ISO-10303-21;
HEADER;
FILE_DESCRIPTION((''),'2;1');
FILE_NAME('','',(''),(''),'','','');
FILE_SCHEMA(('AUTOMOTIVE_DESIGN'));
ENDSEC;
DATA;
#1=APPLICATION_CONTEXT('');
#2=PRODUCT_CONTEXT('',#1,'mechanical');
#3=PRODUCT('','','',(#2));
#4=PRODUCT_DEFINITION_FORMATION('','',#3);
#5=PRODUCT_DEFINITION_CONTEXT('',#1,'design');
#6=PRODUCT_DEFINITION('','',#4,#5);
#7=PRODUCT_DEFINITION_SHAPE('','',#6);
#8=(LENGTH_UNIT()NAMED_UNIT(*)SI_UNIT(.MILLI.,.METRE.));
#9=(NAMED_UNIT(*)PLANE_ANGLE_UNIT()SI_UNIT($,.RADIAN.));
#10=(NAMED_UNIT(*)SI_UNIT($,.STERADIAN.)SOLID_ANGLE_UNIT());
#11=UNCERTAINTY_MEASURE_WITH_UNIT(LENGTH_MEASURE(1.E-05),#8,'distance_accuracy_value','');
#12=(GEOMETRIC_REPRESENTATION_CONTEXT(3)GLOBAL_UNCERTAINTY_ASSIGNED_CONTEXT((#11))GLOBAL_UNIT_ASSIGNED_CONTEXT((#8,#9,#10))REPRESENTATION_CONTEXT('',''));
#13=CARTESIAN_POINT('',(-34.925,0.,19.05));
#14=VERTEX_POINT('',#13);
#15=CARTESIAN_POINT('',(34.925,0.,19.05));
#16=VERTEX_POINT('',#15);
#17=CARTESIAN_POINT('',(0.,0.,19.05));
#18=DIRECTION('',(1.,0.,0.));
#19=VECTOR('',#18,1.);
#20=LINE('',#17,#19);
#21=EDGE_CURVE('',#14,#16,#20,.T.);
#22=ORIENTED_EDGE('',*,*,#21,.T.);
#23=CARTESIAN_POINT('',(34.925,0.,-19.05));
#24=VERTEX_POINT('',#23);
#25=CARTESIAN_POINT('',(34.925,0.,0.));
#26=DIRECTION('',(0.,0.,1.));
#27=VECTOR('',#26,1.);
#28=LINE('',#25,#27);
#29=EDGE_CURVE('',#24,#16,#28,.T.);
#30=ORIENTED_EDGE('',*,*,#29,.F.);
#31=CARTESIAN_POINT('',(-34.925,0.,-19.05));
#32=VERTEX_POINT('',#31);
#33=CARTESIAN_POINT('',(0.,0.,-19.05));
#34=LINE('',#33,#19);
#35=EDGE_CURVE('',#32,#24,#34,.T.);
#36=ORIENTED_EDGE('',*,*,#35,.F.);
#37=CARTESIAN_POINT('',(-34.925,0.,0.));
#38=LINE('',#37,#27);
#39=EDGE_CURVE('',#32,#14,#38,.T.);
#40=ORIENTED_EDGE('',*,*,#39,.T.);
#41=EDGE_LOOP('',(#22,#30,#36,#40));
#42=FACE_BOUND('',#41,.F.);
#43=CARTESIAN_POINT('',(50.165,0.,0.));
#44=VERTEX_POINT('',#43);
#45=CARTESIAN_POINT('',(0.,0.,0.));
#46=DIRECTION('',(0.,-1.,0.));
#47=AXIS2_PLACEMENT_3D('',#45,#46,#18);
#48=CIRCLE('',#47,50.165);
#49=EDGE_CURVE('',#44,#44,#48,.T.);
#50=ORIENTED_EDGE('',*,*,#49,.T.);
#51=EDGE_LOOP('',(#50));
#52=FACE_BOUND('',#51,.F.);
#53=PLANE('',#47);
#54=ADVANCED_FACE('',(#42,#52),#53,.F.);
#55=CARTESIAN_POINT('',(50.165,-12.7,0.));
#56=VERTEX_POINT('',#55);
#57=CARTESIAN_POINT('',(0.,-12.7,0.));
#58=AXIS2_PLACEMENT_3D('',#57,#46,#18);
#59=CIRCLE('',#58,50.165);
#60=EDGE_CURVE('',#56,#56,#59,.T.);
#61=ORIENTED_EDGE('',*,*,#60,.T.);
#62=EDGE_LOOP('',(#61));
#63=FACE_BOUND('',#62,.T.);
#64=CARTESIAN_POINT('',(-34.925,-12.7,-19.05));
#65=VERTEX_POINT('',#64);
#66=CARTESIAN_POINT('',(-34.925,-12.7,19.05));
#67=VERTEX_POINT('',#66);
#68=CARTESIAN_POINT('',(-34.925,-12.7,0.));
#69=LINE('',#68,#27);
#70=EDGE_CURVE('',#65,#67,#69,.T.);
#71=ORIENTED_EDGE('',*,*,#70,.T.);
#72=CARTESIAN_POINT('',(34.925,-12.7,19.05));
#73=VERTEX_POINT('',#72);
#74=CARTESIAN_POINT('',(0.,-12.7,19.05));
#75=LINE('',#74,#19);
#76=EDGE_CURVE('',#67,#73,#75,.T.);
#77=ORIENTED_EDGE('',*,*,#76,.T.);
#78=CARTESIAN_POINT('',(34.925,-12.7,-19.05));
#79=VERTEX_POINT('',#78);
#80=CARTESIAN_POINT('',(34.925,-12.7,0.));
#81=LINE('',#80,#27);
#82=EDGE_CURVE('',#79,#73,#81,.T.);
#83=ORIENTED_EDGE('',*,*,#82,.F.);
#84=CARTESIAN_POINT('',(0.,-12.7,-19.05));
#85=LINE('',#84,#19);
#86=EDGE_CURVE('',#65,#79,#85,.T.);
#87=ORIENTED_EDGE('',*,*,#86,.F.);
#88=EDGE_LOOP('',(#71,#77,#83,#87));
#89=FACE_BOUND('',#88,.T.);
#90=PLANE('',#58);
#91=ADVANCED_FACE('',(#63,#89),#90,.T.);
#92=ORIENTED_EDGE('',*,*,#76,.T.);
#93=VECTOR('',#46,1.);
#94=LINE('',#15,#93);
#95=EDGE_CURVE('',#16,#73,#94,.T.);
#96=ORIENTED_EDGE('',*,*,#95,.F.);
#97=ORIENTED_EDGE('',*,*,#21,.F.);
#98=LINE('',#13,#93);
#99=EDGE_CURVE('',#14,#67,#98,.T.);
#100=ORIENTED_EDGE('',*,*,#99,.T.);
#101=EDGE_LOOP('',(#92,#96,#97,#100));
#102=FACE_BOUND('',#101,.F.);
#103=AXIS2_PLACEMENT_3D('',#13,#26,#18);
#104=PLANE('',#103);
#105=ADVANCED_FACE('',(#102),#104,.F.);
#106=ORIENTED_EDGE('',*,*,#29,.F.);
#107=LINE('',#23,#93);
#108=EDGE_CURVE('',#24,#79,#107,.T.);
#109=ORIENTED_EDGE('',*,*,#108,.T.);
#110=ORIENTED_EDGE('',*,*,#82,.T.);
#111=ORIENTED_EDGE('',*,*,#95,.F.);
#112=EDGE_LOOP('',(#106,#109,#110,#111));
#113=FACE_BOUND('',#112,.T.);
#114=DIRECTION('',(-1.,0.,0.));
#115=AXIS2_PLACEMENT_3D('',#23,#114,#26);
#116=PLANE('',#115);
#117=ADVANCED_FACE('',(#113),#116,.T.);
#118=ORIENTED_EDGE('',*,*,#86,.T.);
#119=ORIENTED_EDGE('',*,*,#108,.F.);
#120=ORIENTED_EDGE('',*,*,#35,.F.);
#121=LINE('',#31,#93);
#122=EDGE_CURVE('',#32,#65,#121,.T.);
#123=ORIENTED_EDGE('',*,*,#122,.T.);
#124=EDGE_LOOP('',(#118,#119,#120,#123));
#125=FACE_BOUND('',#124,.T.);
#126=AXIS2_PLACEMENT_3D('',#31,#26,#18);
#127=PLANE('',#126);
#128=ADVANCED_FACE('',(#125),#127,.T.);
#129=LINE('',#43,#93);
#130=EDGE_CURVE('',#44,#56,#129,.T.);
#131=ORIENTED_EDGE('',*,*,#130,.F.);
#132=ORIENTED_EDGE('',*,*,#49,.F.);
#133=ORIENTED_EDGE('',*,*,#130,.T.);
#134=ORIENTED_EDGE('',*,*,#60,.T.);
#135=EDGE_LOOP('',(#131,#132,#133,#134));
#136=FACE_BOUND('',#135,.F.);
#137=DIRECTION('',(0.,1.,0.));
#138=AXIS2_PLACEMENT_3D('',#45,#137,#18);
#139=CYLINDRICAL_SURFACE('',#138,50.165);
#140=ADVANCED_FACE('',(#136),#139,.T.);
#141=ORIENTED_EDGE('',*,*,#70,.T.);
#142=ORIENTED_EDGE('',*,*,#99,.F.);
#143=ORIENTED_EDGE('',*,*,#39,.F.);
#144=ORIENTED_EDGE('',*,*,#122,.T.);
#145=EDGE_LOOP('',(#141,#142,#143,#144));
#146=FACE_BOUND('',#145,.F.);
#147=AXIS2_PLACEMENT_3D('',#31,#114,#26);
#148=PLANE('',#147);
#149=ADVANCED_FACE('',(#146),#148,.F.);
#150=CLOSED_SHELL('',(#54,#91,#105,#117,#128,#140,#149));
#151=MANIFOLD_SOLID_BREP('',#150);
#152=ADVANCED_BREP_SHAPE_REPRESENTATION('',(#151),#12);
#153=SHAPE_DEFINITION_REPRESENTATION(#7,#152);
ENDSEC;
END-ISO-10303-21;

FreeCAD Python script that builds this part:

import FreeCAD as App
import Part
import Sketcher
from FreeCAD import Vector
Q = App.Units.Quantity


def add_polygon(sketch, points):
    """Adds a closed chain of lines whose ends are joined by coincident constraints."""
    first, n = sketch.GeometryCount, len(points)
    for a, b in zip(points, points[1:] + points[:1]):
        sketch.addGeometry(Part.LineSegment(App.Vector(*a, 0), App.Vector(*b, 0)), False)
    for i in range(n):
        sketch.addConstraint(Sketcher.Constraint("Coincident", first + i, 2, first + (i + 1) % n, 1))

doc = App.newDocument("Part")
params = doc.addObject("Spreadsheet::Sheet", "Params")
for row, (alias, value) in enumerate([
    ("sketch1_diameter", "3.95 in"),
    ("sketch1_height", "1.5 in"),
    ("sketch1_width", "2.75 in"),
    ("pad1_length", "0.5 in"),
], start=1):
    params.set(f"A{row}", alias)
    params.set(f"B{row}", "=" + value)
    params.setAlias(f"B{row}", alias)

body = doc.addObject("PartDesign::Body", "Body")

sketch1 = body.newObject("Sketcher::SketchObject", "Sketch")
sketch1.AttachmentSupport = (doc.getObject("XZ_Plane"), [""])
sketch1.MapMode = "FlatFace"
sketch1.addGeometry(Part.Circle(Vector(0, 0, 0), Vector(0, 0, 1), 50), False)
add_polygon(sketch1, [(35, -19), (-35, -19), (-35, 19), (35, 19)])
sketch1.addConstraint(Sketcher.Constraint("Horizontal", 1))
sketch1.addConstraint(Sketcher.Constraint("Vertical", 2))
sketch1.addConstraint(Sketcher.Constraint("Horizontal", 3))
sketch1.addConstraint(Sketcher.Constraint("Vertical", 4))
sketch1.addConstraint(Sketcher.Constraint("Coincident", 0, 3, -1, 1))
sketch1.addConstraint(Sketcher.Constraint("Symmetric", 1, 2, 3, 2, -1, 1))
sketch1.addConstraint(Sketcher.Constraint("Diameter", 0, Q("3.95 in")))
sketch1.addConstraint(Sketcher.Constraint("DistanceY", 2, 1, 2, 2, Q("1.5 in")))
sketch1.addConstraint(Sketcher.Constraint("DistanceX", 1, 2, 1, 1, Q("2.75 in")))
sketch1.setExpression("Constraints[10]", "Params.sketch1_diameter")
sketch1.setExpression("Constraints[11]", "Params.sketch1_height")
sketch1.setExpression("Constraints[12]", "Params.sketch1_width")
pad1 = body.newObject("PartDesign::Pad", "Pad")
pad1.Profile = sketch1
pad1.setExpression("Length", "Params.pad1_length")

doc.recompute()
